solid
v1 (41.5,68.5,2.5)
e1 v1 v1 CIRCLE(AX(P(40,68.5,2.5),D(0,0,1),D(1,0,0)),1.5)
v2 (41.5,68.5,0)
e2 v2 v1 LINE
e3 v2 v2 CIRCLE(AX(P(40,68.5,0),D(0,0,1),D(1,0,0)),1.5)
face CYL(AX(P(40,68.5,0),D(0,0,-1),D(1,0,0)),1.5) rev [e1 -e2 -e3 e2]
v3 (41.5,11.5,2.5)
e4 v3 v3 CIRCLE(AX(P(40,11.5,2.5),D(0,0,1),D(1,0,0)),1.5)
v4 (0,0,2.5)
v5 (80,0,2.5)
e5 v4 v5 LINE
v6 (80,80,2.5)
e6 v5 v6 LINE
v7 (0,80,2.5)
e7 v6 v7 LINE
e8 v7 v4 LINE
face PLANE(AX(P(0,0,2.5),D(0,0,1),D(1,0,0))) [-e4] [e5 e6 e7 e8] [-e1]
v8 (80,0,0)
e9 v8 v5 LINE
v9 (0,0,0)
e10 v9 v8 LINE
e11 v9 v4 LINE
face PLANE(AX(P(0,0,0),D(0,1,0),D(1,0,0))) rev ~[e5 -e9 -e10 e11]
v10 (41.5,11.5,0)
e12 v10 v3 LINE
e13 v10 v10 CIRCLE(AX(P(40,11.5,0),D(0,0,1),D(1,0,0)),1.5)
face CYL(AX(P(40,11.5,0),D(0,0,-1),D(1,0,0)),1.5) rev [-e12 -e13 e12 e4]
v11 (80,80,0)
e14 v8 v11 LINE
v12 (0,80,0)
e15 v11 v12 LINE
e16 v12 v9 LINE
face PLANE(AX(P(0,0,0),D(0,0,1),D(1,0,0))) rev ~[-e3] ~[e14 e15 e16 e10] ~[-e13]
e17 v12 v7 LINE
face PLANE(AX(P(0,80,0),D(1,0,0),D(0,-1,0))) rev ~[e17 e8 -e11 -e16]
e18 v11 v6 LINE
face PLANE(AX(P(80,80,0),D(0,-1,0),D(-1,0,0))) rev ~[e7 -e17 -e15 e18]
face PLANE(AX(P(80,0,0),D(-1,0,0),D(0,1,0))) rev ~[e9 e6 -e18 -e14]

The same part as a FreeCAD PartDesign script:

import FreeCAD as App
import Part
import Sketcher
from FreeCAD import Vector
Q = App.Units.Quantity

doc = App.newDocument("Part")
params = doc.addObject("Spreadsheet::Sheet", "Params")
for row, (alias, value) in enumerate([
    ("sketch1_diameter", "3 mm"),
    ("sketch1_width", "80 mm"),
    ("pad1_length", "2.5 mm"),
], start=1):
    params.set(f"A{row}", alias)
    params.set(f"B{row}", "=" + value)
    params.setAlias(f"B{row}", alias)

body = doc.addObject("PartDesign::Body", "Body")

# Sketch on XY plane
sketch1 = body.newObject("Sketcher::SketchObject", "Sketch")
sketch1.AttachmentSupport = (doc.getObject("XY_Plane"), [""])
sketch1.MapMode = "FlatFace"
sketch1.addGeometry([
    Part.LineSegment(Vector(0, 80, 0), Vector(0, 0, 0)),  # 0
    Part.LineSegment(Vector(0, 0, 0), Vector(80, 0, 0)),  # 1
    Part.LineSegment(Vector(80, 0, 0), Vector(80, 80, 0)),  # 2
    Part.LineSegment(Vector(80, 80, 0), Vector(0, 80, 0)),  # 3
    Part.Circle(Vector(40, 11.5, 0), Vector(0, 0, 1), 1.5),  # 4
    Part.Circle(Vector(40, 68.5, 0), Vector(0, 0, 1), 1.5),  # 5
], False)
sketch1.addConstraint([
    Sketcher.Constraint("Coincident", 0, 2, 1, 1),
    Sketcher.Constraint("Coincident", 1, 2, 2, 1),
    Sketcher.Constraint("Coincident", 2, 2, 3, 1),
    Sketcher.Constraint("Coincident", 3, 2, 0, 1),
    Sketcher.Constraint("Vertical", 0),
    Sketcher.Constraint("Horizontal", 1),
    Sketcher.Constraint("Vertical", 2),
    Sketcher.Constraint("Horizontal", 3),
    Sketcher.Constraint("Coincident", 0, 2, -1, 1),
    Sketcher.Constraint("Equal", 4, 5),
    Sketcher.Constraint("Vertical", 4, 3, 5, 3),
    Sketcher.Constraint("Equal", 3, 0),
    Sketcher.Constraint("Diameter", 4, Q("3 mm")),
    Sketcher.Constraint("DistanceX", 1, 1, 1, 2, Q("80 mm")),
    Sketcher.Constraint("DistanceX", -1, 1, 4, 3, Q("40 mm")),
    Sketcher.Constraint("DistanceY", 4, 3, 5, 3, Q("57 mm")),
    Sketcher.Constraint("DistanceY", -1, 1, 4, 3, Q("11.5 mm")),
])
sketch1.setExpression("Constraints[12]", "Params.sketch1_diameter")
sketch1.setExpression("Constraints[13]", "Params.sketch1_width")
pad1 = body.newObject("PartDesign::Pad", "Pad")
pad1.Profile = sketch1
pad1.setExpression("Length", "Params.pad1_length")

doc.recompute()
